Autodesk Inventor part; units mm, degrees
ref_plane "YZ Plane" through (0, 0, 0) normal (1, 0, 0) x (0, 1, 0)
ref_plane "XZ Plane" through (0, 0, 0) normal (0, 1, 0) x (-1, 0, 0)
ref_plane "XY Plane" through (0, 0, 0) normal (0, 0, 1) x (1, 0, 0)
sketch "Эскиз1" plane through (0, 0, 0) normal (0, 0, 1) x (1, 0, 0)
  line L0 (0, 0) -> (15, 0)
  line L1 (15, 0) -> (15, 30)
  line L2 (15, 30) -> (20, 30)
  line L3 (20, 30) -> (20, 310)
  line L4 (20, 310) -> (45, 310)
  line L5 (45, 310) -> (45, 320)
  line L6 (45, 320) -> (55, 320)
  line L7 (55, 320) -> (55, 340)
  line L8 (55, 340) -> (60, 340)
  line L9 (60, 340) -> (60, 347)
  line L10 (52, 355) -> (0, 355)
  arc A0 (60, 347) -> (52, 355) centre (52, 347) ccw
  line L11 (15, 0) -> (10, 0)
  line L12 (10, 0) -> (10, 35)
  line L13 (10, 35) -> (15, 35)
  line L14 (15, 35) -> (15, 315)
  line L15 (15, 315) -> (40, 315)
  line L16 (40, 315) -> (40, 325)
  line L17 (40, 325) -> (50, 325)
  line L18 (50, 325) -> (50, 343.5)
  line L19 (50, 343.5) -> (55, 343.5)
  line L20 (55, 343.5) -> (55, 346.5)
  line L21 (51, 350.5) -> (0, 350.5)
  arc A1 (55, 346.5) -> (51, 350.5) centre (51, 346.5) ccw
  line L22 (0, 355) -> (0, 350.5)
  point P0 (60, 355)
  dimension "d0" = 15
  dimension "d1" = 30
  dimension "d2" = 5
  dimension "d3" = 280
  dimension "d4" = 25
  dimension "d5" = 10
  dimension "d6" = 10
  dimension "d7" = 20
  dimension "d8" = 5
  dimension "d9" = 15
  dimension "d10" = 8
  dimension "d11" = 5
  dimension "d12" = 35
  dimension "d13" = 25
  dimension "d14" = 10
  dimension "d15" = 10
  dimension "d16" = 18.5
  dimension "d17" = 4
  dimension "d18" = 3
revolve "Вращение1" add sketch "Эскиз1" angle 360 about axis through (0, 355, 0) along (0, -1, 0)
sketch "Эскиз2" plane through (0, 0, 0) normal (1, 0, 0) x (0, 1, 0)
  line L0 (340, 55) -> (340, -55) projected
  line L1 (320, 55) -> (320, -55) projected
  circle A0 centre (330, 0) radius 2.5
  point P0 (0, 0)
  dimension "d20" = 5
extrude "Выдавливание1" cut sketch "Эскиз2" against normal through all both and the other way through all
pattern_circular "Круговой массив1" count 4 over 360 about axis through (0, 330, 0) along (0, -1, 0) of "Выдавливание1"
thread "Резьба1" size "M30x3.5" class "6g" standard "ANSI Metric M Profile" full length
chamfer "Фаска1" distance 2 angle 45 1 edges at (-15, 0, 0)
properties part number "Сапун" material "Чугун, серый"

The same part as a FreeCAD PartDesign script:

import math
import FreeCAD as App
import Part
import Sketcher

V = App.Vector
Q = App.Units.Quantity


def edges_at(feature, points):
    """Names of the edges that pass closest to the given points."""
    edges = feature.Shape.Edges
    near = lambda p: min(range(len(edges)), key=lambda i: edges[i].distToShape(Part.Vertex(*p))[0])
    return sorted({f"Edge{near(p) + 1}" for p in points})

doc = App.newDocument("Part")
body = doc.addObject("PartDesign::Body", "Body")

# Sketch on XY plane
sketch1 = doc.addObject("Sketcher::SketchObject", "Sketch")
body.addObject(sketch1)
sketch1.AttachmentSupport = (doc.XY_Plane, [""])
sketch1.MapMode = "FlatFace"
sketch1.addGeometry(Part.LineSegment(V(10, 35, 0), V(10, 0, 0)), False)
sketch1.addGeometry(Part.LineSegment(V(10, 0, 0), V(15, 0, 0)), False)
sketch1.addGeometry(Part.LineSegment(V(15, 0, 0), V(15, 30, 0)), False)
sketch1.addGeometry(Part.LineSegment(V(15, 30, 0), V(20, 30, 0)), False)
sketch1.addGeometry(Part.LineSegment(V(20, 30, 0), V(20, 310, 0)), False)
sketch1.addGeometry(Part.LineSegment(V(20, 310, 0), V(45, 310, 0)), False)
sketch1.addGeometry(Part.LineSegment(V(45, 310, 0), V(45, 320, 0)), False)
sketch1.addGeometry(Part.LineSegment(V(45, 320, 0), V(55, 320, 0)), False)
sketch1.addGeometry(Part.LineSegment(V(55, 320, 0), V(55, 340, 0)), False)
sketch1.addGeometry(Part.LineSegment(V(55, 340, 0), V(60, 340, 0)), False)
sketch1.addGeometry(Part.LineSegment(V(60, 340, 0), V(60, 347, 0)), False)
sketch1.addGeometry(Part.ArcOfCircle(Part.Circle(V(52, 347, 0), V(0, 0, 1), 8), math.radians(0), math.radians(90)), False)
sketch1.addGeometry(Part.LineSegment(V(52, 355, 0), V(0, 355, 0)), False)
sketch1.addGeometry(Part.LineSegment(V(0, 355, 0), V(0, 350.5, 0)), False)
sketch1.addGeometry(Part.LineSegment(V(0, 350.5, 0), V(51, 350.5, 0)), False)
sketch1.addGeometry(Part.ArcOfCircle(Part.Circle(V(51, 346.5, 0), V(0, 0, 1), 4), math.radians(0), math.radians(90)), False)
sketch1.addGeometry(Part.LineSegment(V(55, 346.5, 0), V(55, 343.5, 0)), False)
sketch1.addGeometry(Part.LineSegment(V(55, 343.5, 0), V(50, 343.5, 0)), False)
sketch1.addGeometry(Part.LineSegment(V(50, 343.5, 0), V(50, 325, 0)), False)
sketch1.addGeometry(Part.LineSegment(V(50, 325, 0), V(40, 325, 0)), False)
sketch1.addGeometry(Part.LineSegment(V(40, 325, 0), V(40, 315, 0)), False)
sketch1.addGeometry(Part.LineSegment(V(40, 315, 0), V(15, 315, 0)), False)
sketch1.addGeometry(Part.LineSegment(V(15, 315, 0), V(15, 35, 0)), False)
sketch1.addGeometry(Part.LineSegment(V(15, 35, 0), V(10, 35, 0)), False)
sketch1.addConstraint(Sketcher.Constraint("Coincident", 0, 2, 1, 1))
sketch1.addConstraint(Sketcher.Constraint("Coincident", 1, 2, 2, 1))
sketch1.addConstraint(Sketcher.Constraint("Coincident", 2, 2, 3, 1))
sketch1.addConstraint(Sketcher.Constraint("Coincident", 3, 2, 4, 1))
sketch1.addConstraint(Sketcher.Constraint("Coincident", 4, 2, 5, 1))
sketch1.addConstraint(Sketcher.Constraint("Coincident", 5, 2, 6, 1))
sketch1.addConstraint(Sketcher.Constraint("Coincident", 6, 2, 7, 1))
sketch1.addConstraint(Sketcher.Constraint("Coincident", 7, 2, 8, 1))
sketch1.addConstraint(Sketcher.Constraint("Coincident", 8, 2, 9, 1))
sketch1.addConstraint(Sketcher.Constraint("Coincident", 9, 2, 10, 1))
sketch1.addConstraint(Sketcher.Constraint("Tangent", 10, 2, 11, 1))
sketch1.addConstraint(Sketcher.Constraint("Tangent", 11, 2, 12, 1))
sketch1.addConstraint(Sketcher.Constraint("Coincident", 12, 2, 13, 1))
sketch1.addConstraint(Sketcher.Constraint("Coincident", 13, 2, 14, 1))
sketch1.addConstraint(Sketcher.Constraint("Tangent", 14, 2, 15, 2))
sketch1.addConstraint(Sketcher.Constraint("Tangent", 15, 1, 16, 1))
sketch1.addConstraint(Sketcher.Constraint("Coincident", 16, 2, 17, 1))
sketch1.addConstraint(Sketcher.Constraint("Coincident", 17, 2, 18, 1))
sketch1.addConstraint(Sketcher.Constraint("Coincident", 18, 2, 19, 1))
sketch1.addConstraint(Sketcher.Constraint("Coincident", 19, 2, 20, 1))
sketch1.addConstraint(Sketcher.Constraint("Coincident", 20, 2, 21, 1))
sketch1.addConstraint(Sketcher.Constraint("Coincident", 21, 2, 22, 1))
sketch1.addConstraint(Sketcher.Constraint("Coincident", 22, 2, 23, 1))
sketch1.addConstraint(Sketcher.Constraint("Coincident", 23, 2, 0, 1))
sketch1.addConstraint(Sketcher.Constraint("Vertical", 0))
sketch1.addConstraint(Sketcher.Constraint("Horizontal", 1))
sketch1.addConstraint(Sketcher.Constraint("Vertical", 2))
sketch1.addConstraint(Sketcher.Constraint("Horizontal", 3))
sketch1.addConstraint(Sketcher.Constraint("Vertical", 4))
sketch1.addConstraint(Sketcher.Constraint("Horizontal", 5))
sketch1.addConstraint(Sketcher.Constraint("Vertical", 6))
sketch1.addConstraint(Sketcher.Constraint("Horizontal", 7))
sketch1.addConstraint(Sketcher.Constraint("Vertical", 8))
sketch1.addConstraint(Sketcher.Constraint("Horizontal", 9))
sketch1.addConstraint(Sketcher.Constraint("Vertical", 10))
sketch1.addConstraint(Sketcher.Constraint("Horizontal", 12))
sketch1.addConstraint(Sketcher.Constraint("Vertical", 13))
sketch1.addConstraint(Sketcher.Constraint("Horizontal", 14))
sketch1.addConstraint(Sketcher.Constraint("Vertical", 16))
sketch1.addConstraint(Sketcher.Constraint("Horizontal", 17))
sketch1.addConstraint(Sketcher.Constraint("Vertical", 18))
sketch1.addConstraint(Sketcher.Constraint("Horizontal", 19))
sketch1.addConstraint(Sketcher.Constraint("Vertical", 20))
sketch1.addConstraint(Sketcher.Constraint("Horizontal", 21))
sketch1.addConstraint(Sketcher.Constraint("Vertical", 22))
sketch1.addConstraint(Sketcher.Constraint("Horizontal", 23))
sketch1.addConstraint(Sketcher.Constraint("PointOnObject", 0, 2, -1))
sketch1.addConstraint(Sketcher.Constraint("PointOnObject", 12, 2, -2))
sketch1.addConstraint(Sketcher.Constraint("Vertical", 8, 2, 15, 1))
sketch1.addConstraint(Sketcher.Constraint("Vertical", 2, 2, 21, 2))
sketch1.addConstraint(Sketcher.Constraint("Equal", 1, 3))
sketch1.addConstraint(Sketcher.Constraint("Equal", 3, 9))
sketch1.addConstraint(Sketcher.Constraint("Equal", 9, 17))
sketch1.addConstraint(Sketcher.Constraint("Equal", 7, 19))
sketch1.addConstraint(Sketcher.Constraint("Equal", 19, 6))
sketch1.addConstraint(Sketcher.Constraint("Equal", 6, 20))
sketch1.addConstraint(Sketcher.Constraint("Equal", 4, 22))
sketch1.addConstraint(Sketcher.Constraint("Radius", 11, Q("8 mm")))
sketch1.addConstraint(Sketcher.Constraint("Radius", 15, Q("4 mm")))
sketch1.addConstraint(Sketcher.Constraint("DistanceX", 1, 1, 1, 2, Q("5 mm")))
sketch1.addConstraint(Sketcher.Constraint("DistanceX", 5, 1, 5, 2, Q("25 mm")))
sketch1.addConstraint(Sketcher.Constraint("DistanceX", 7, 1, 7, 2, Q("10 mm")))
sketch1.addConstraint(Sketcher.Constraint("DistanceY", 0, 2, 0, 1, Q("35 mm")))
sketch1.addConstraint(Sketcher.Constraint("DistanceY", 2, 1, 2, 2, Q("30 mm")))
sketch1.addConstraint(Sketcher.Constraint("DistanceY", 4, 1, 4, 2, Q("280 mm")))
sketch1.addConstraint(Sketcher.Constraint("DistanceY", 8, 1, 8, 2, Q("20 mm")))
sketch1.addConstraint(Sketcher.Constraint("DistanceY", 16, 2, 16, 1, Q("3 mm")))
sketch1.addConstraint(Sketcher.Constraint("DistanceY", 18, 2, 18, 1, Q("18.5 mm")))
sketch1.addConstraint(Sketcher.Constraint("DistanceX", -1, 1, 0, 2, Q("10 mm")))
sketch1.addConstraint(Sketcher.Constraint("DistanceY", 8, 2, 11, 2, Q("15 mm")))
revolution = doc.addObject("PartDesign::Revolution", "Revolution")
body.addObject(revolution)
revolution.Profile = sketch1
revolution.ReferenceAxis = (sketch1, ["V_Axis"])
revolution.Angle = 360

# Sketch on YZ plane
sketch2 = doc.addObject("Sketcher::SketchObject", "Sketch001")
body.addObject(sketch2)
sketch2.AttachmentSupport = (doc.YZ_Plane, [""])
sketch2.MapMode = "FlatFace"
sketch2.addGeometry(Part.Circle(V(330, 0, 0), V(0, 0, 1), 2.5), False)
sketch2.addConstraint(Sketcher.Constraint("PointOnObject", 0, 3, -1))
sketch2.addConstraint(Sketcher.Constraint("Diameter", 0, Q("5 mm")))
sketch2.addConstraint(Sketcher.Constraint("DistanceX", -1, 1, 0, 3, Q("330 mm")))
pocket1 = doc.addObject("PartDesign::Pocket", "Pocket")
body.addObject(pocket1)
pocket1.Profile = sketch2
pocket1.Type = "ThroughAll"
pocket1.Midplane = True
doc.recompute()

polarpattern = doc.addObject("PartDesign::PolarPattern", "PolarPattern")
body.addObject(polarpattern)
polarpattern.Originals = [pocket1]
polarpattern.Axis = (doc.Y_Axis, [""])
polarpattern.Angle = 360
polarpattern.Occurrences = 4
body.Tip = polarpattern
doc.recompute()

chamfer = doc.addObject("PartDesign::Chamfer", "Chamfer")
body.addObject(chamfer)
chamfer.Base = (polarpattern, edges_at(polarpattern, [(-15, 0, 0)]))
chamfer.Size = 2

doc.recompute()
